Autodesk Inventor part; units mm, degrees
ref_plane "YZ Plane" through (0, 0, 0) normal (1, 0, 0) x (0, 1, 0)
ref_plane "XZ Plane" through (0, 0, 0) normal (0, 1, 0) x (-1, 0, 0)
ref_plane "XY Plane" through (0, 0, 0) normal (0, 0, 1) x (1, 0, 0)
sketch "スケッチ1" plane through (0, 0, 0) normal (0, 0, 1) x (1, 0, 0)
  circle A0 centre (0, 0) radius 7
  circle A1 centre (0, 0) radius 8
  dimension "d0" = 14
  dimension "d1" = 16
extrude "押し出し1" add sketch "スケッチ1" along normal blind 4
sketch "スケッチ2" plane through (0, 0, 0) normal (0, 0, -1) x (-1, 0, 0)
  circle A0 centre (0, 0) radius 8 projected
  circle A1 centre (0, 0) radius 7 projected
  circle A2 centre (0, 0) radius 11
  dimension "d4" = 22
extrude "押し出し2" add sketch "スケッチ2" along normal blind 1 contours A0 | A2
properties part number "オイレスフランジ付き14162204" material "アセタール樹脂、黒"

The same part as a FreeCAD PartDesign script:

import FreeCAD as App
import Part
import Sketcher

V = App.Vector

doc = App.newDocument("Part")
params = doc.addObject("Spreadsheet::Sheet", "Params")
for row, (alias, value) in enumerate([
    ("sketch1_diameter", "16 mm"),
    ("sketch1_diameter2", "14 mm"),
    ("pad1_length", "4 mm"),
    ("sketch2_diameter", "22 mm"),
    ("sketch2_diameter2", "14 mm"),
    ("pad2_length", "1 mm"),
], start=1):
    params.set(f"A{row}", alias)
    params.set(f"B{row}", "=" + value)
    params.setAlias(f"B{row}", alias)

body = doc.addObject("PartDesign::Body", "Body")

# Sketch on XY plane
sketch1 = doc.addObject("Sketcher::SketchObject", "Sketch")
body.addObject(sketch1)
sketch1.AttachmentSupport = (doc.XY_Plane, [""])
sketch1.MapMode = "FlatFace"
sketch1.addGeometry(Part.Circle(V(0, 0, 0), V(0, 0, 1), 8), False)
sketch1.addGeometry(Part.Circle(V(0, 0, 0), V(0, 0, 1), 7), False)
sketch1.addConstraint(Sketcher.Constraint("Coincident", 0, 3, -1, 1))
sketch1.addConstraint(Sketcher.Constraint("Coincident", 1, 3, -1, 1))
sketch1.addConstraint(Sketcher.Constraint("Diameter", 0, 16.0))
sketch1.addConstraint(Sketcher.Constraint("Diameter", 1, 14.0))
sketch1.setExpression("Constraints[2]", "Params.sketch1_diameter")
sketch1.setExpression("Constraints[3]", "Params.sketch1_diameter2")
pad1 = doc.addObject("PartDesign::Pad", "Pad")
body.addObject(pad1)
pad1.Profile = sketch1
pad1.setExpression("Length", "Params.pad1_length")

# Sketch on XY plane
sketch2 = doc.addObject("Sketcher::SketchObject", "Sketch001")
body.addObject(sketch2)
sketch2.AttachmentSupport = (doc.XY_Plane, [""])
sketch2.MapMode = "FlatFace"
sketch2.addGeometry(Part.Circle(V(0, 0, 0), V(0, 0, 1), 11), False)
sketch2.addGeometry(Part.Circle(V(0, 0, 0), V(0, 0, 1), 7), False)
sketch2.addConstraint(Sketcher.Constraint("Coincident", 0, 3, -1, 1))
sketch2.addConstraint(Sketcher.Constraint("Coincident", 1, 3, -1, 1))
sketch2.addConstraint(Sketcher.Constraint("Diameter", 0, 22.0))
sketch2.addConstraint(Sketcher.Constraint("Diameter", 1, 14.0))
sketch2.setExpression("Constraints[2]", "Params.sketch2_diameter")
sketch2.setExpression("Constraints[3]", "Params.sketch2_diameter2")
pad2 = doc.addObject("PartDesign::Pad", "Pad001")
body.addObject(pad2)
pad2.Profile = sketch2
pad2.setExpression("Length", "Params.pad2_length")
pad2.Reversed = True

doc.recompute()
